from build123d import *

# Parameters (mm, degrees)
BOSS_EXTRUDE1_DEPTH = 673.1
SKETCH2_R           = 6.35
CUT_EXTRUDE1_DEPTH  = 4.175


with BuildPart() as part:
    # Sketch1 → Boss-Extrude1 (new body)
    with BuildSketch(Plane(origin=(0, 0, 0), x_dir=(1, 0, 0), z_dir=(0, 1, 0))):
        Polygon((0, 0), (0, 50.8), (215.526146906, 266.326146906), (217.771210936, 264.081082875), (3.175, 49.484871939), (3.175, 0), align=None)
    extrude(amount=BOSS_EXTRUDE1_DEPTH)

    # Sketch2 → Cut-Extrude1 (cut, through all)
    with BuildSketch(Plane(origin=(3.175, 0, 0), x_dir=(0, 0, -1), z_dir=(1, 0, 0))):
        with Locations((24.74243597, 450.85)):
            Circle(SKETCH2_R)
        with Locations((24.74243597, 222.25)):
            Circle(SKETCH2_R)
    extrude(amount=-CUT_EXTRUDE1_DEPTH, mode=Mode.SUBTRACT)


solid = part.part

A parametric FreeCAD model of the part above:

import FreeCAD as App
import Part
import Sketcher

V = App.Vector
Q = App.Units.Quantity

doc = App.newDocument("Part")
body = doc.addObject("PartDesign::Body", "Body")

sketch1 = body.newObject("Sketcher::SketchObject", "Sketch")
sketch1.AttachmentSupport = (doc.getObject("XZ_Plane"), [""])
sketch1.MapMode = "FlatFace"
sketch1.addGeometry([
    Part.LineSegment(V(0, -50.8, 0), V(0, 0, 0)),
    Part.LineSegment(V(0, 0, 0), V(3.2, 0, 0)),
    Part.LineSegment(V(3.2, 0, 0), V(3.2, -49.5, 0)),
    Part.LineSegment(V(3.2, -49.5, 0), V(217.8, -264.1, 0)),
    Part.LineSegment(V(217.8, -264.1, 0), V(215.5, -266.3, 0)),
    Part.LineSegment(V(215.5, -266.3, 0), V(0, -50.8, 0)),
], False)
sketch1.addConstraint([
    Sketcher.Constraint("Coincident", 0, 2, 1, 1),
    Sketcher.Constraint("Coincident", 1, 2, 2, 1),
    Sketcher.Constraint("Coincident", 2, 2, 3, 1),
    Sketcher.Constraint("Coincident", 3, 2, 4, 1),
    Sketcher.Constraint("Coincident", 4, 2, 5, 1),
    Sketcher.Constraint("Coincident", 5, 2, 0, 1),
    Sketcher.Constraint("Vertical", 0),
    Sketcher.Constraint("Horizontal", 1),
    Sketcher.Constraint("Vertical", 2),
    Sketcher.Constraint("Coincident", 0, 2, -1, 1),
    Sketcher.Constraint("Perpendicular", 3, 4),
    Sketcher.Constraint("Perpendicular", 4, 5),
    Sketcher.Constraint("DistanceY", 0, 1, 0, 2, Q("2 in")),
    Sketcher.Constraint("Distance", 5, Q("12 in")),
    Sketcher.Constraint("Angle", 3, Q("-45 deg")),
    Sketcher.Constraint("DistanceX", 1, 1, 1, 2, Q("0.125 in")),
    Sketcher.Constraint("Distance", 4, Q("0.125 in")),
])
pad1 = body.newObject("PartDesign::Pad", "Pad")
pad1.Profile = sketch1
pad1.Length = Q("26.5 in")
pad1.Reversed = True

sketch2 = body.newObject("Sketcher::SketchObject", "Sketch001")
sketch2.AttachmentSupport = (doc.getObject("YZ_Plane"), [""])
sketch2.MapMode = "FlatFace"
sketch2.AttachmentOffset = App.Placement(V(0, 0, 0.125 * 25.4), App.Rotation())
sketch2.addGeometry([
    Part.Circle(V(451, -25, 0), V(0, 0, 1), 6),
    Part.Circle(V(222, -25, 0), V(0, 0, 1), 6),
], False)
sketch2.addConstraint([
    Sketcher.Constraint("Equal", 0, 1),
    Sketcher.Constraint("Horizontal", 0, 3, 1, 3),
    Sketcher.Constraint("Diameter", 0, Q("0.5 in")),
    Sketcher.Constraint("DistanceX", 1, 3, 0, 3, Q("9 in")),
    Sketcher.Constraint("DistanceX", -1, 1, 0, 3, Q("17.75 in")),
    Sketcher.Constraint("DistanceY", 0, 3, -1, 1, 24.742436),
])
pocket1 = body.newObject("PartDesign::Pocket", "Pocket")
pocket1.Profile = sketch2
pocket1.Type = "ThroughAll"

doc.recompute()
